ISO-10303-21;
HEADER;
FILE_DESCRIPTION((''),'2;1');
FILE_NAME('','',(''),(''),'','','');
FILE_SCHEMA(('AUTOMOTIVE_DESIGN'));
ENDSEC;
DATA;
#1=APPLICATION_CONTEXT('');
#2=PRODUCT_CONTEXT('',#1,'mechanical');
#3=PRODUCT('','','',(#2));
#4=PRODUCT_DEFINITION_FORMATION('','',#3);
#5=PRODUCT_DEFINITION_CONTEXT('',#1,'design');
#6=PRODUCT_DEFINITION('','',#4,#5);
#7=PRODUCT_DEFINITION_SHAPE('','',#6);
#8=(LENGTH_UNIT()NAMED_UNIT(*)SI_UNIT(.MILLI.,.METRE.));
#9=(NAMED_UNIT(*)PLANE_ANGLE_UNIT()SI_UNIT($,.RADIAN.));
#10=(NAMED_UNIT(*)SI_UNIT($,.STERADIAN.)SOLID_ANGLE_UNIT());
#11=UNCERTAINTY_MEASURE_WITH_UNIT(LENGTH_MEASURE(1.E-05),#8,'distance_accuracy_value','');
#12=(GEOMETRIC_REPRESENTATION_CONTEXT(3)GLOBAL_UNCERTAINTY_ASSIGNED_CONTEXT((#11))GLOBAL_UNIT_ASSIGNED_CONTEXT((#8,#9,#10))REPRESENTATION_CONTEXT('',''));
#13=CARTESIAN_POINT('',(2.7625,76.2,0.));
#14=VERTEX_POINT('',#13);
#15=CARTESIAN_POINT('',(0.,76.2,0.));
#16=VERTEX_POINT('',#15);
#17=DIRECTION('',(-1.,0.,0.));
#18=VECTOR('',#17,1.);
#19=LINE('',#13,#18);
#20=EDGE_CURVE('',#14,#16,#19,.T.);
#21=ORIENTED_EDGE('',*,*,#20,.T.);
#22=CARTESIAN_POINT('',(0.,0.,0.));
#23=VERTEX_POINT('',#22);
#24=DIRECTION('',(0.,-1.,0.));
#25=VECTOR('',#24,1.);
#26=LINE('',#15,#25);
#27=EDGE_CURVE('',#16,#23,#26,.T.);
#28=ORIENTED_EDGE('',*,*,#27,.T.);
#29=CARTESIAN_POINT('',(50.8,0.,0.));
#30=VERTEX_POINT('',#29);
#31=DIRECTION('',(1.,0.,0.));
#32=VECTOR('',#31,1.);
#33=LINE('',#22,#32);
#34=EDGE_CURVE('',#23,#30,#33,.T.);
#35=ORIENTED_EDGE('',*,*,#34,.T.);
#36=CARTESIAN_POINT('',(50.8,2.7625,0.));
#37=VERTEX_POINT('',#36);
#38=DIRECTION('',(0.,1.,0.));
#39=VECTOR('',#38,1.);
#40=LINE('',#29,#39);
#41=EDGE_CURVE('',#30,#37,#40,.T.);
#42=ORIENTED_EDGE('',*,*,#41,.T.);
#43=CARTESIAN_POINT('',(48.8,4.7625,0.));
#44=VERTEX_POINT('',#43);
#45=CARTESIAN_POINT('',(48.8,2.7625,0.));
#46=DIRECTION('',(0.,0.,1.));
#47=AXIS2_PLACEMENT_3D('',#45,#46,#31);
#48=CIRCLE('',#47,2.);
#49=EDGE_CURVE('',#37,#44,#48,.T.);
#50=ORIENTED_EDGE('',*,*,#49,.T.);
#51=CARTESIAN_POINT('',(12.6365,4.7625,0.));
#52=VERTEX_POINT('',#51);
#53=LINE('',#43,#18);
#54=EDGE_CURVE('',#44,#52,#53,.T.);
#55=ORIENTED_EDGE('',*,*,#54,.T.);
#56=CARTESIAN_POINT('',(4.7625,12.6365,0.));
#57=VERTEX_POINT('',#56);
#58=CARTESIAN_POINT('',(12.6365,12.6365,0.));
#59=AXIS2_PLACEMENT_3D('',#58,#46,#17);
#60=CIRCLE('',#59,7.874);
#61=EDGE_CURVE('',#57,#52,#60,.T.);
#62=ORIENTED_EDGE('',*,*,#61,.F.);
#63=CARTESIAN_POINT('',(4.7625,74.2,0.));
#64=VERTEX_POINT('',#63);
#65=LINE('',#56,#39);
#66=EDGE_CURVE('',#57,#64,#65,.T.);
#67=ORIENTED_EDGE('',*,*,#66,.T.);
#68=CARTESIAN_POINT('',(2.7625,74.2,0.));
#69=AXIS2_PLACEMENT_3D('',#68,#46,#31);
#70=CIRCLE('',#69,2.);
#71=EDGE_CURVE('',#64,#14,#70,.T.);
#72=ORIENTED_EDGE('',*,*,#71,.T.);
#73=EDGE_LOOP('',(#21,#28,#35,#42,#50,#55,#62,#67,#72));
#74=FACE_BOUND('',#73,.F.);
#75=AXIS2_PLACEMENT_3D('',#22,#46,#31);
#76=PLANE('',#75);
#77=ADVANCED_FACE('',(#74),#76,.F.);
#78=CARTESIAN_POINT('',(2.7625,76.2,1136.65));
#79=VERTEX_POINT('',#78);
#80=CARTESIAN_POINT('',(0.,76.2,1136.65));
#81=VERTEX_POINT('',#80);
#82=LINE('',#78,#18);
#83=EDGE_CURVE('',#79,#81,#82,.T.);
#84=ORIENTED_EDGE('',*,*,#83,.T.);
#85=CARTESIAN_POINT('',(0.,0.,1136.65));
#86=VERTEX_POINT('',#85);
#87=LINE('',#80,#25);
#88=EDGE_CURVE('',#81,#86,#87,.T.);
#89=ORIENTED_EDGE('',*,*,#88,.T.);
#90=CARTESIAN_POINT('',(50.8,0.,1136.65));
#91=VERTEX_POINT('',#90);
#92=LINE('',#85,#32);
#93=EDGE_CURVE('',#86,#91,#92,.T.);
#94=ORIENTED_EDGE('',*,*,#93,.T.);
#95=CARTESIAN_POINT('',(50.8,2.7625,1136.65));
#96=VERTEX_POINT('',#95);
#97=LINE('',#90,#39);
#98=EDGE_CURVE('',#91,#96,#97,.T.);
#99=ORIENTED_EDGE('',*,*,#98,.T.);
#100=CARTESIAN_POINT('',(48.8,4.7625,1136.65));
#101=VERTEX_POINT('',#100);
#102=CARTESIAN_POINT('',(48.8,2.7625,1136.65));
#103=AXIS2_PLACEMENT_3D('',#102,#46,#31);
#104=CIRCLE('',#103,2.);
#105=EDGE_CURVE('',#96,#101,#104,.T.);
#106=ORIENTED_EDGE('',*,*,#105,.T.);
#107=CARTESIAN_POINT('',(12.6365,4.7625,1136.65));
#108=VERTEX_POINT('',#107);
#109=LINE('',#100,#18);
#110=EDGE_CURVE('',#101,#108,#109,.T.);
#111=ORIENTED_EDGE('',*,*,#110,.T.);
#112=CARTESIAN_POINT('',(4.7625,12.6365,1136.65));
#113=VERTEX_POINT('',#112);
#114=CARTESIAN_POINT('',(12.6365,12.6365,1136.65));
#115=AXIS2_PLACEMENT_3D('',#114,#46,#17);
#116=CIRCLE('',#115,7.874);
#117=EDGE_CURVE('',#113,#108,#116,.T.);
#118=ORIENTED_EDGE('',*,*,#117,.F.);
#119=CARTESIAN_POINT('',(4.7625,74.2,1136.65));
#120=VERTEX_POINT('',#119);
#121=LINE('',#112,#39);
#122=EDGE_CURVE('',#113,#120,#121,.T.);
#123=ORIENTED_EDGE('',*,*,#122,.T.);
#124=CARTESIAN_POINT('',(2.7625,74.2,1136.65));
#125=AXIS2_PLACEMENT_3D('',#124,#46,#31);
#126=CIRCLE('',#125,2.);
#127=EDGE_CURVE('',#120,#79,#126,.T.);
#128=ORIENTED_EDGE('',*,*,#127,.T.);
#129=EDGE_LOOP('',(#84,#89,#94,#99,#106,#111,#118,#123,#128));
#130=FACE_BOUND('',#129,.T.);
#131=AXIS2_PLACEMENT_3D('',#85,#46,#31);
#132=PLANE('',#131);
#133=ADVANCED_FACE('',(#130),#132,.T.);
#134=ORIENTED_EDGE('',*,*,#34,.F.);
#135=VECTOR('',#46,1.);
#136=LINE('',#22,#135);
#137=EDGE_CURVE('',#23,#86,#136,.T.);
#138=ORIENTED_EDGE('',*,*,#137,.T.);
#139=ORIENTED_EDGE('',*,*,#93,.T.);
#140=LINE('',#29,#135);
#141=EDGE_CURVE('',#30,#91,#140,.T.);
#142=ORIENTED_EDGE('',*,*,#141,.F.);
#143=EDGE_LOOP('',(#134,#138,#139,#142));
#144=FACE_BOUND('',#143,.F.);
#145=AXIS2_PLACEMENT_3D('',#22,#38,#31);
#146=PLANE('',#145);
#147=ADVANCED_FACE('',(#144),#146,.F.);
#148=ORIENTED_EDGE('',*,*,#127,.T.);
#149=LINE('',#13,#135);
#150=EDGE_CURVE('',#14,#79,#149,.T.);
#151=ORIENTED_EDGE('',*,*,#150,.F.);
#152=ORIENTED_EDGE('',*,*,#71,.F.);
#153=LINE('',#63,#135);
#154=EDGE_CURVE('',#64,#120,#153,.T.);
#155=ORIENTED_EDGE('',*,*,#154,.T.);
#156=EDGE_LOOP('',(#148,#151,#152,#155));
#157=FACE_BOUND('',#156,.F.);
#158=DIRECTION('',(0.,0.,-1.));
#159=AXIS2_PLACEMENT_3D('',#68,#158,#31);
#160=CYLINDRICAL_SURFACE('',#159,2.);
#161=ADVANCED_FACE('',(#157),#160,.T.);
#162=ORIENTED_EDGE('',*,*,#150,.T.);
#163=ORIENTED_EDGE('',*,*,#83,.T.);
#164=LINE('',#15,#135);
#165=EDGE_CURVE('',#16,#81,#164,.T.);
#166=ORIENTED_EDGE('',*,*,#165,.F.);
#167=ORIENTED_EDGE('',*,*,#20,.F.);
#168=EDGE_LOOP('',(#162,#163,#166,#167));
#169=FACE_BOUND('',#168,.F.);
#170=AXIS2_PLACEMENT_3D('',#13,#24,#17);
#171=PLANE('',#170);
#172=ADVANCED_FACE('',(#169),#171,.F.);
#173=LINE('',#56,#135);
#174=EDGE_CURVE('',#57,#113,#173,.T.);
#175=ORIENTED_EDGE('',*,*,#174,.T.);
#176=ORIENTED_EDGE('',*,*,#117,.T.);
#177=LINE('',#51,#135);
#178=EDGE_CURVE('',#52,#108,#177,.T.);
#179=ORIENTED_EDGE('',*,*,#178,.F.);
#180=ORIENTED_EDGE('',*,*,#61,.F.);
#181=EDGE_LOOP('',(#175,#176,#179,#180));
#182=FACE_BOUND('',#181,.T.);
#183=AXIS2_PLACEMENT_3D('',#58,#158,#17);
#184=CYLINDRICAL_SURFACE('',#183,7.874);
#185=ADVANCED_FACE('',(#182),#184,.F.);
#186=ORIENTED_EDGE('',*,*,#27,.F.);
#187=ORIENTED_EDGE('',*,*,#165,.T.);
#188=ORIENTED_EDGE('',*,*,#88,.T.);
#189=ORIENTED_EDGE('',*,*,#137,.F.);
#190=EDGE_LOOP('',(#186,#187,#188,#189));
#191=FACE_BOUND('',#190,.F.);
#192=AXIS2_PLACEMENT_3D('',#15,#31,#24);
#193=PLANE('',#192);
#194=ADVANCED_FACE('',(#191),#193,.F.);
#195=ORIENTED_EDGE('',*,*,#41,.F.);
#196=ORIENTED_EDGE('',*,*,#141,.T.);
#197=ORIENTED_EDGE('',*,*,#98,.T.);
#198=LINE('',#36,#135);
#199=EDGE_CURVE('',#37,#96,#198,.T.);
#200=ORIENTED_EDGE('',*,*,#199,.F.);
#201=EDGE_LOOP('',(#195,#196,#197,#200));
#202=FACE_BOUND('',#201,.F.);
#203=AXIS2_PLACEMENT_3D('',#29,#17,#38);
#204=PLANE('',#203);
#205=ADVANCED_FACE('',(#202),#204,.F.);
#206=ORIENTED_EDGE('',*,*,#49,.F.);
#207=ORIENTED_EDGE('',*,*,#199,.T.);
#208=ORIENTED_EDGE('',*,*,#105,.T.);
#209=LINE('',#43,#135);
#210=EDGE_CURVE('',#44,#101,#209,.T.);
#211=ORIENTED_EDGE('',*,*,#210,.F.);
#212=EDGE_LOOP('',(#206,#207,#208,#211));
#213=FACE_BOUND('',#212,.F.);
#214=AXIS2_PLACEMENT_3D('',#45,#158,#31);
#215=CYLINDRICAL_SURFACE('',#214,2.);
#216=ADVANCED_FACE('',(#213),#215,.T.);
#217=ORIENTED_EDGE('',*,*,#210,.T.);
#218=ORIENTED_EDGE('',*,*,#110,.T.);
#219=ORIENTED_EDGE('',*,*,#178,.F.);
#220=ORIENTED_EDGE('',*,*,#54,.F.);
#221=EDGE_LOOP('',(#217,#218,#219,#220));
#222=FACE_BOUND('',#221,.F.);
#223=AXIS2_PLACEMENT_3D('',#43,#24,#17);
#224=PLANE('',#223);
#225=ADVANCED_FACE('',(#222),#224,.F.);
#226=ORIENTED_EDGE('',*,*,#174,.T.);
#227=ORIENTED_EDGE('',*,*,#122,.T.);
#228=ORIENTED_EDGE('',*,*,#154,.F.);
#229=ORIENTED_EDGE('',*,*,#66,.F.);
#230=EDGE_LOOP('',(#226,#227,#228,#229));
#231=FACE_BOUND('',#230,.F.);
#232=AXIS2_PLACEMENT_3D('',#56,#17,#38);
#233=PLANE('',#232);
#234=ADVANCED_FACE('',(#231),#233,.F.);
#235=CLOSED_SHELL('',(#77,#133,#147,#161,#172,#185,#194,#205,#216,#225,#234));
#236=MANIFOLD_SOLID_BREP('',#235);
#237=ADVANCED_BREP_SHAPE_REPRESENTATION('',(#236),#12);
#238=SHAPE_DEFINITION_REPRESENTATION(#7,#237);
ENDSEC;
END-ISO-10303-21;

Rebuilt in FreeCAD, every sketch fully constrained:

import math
import FreeCAD as App
import Part
import Sketcher
from FreeCAD import Vector
Q = App.Units.Quantity

doc = App.newDocument("Part")
params = doc.addObject("Spreadsheet::Sheet", "Params")
for row, (alias, value) in enumerate([
    ("sketch1_width", "2 in"),
    ("sketch1_height", "3 in"),
    ("sketch1_radius", "0.31 in"),
    ("pad1_length", "44.75 in"),
], start=1):
    params.set(f"A{row}", alias)
    params.set(f"B{row}", "=" + value)
    params.setAlias(f"B{row}", alias)

body = doc.addObject("PartDesign::Body", "Body")

sketch1 = body.newObject("Sketcher::SketchObject", "Sketch")
sketch1.AttachmentSupport = (doc.getObject("XY_Plane"), [""])
sketch1.MapMode = "FlatFace"
sketch1.addGeometry([
    Part.LineSegment(Vector(2.7625, 76.2, 0), Vector(0, 76.2, 0)),
    Part.LineSegment(Vector(0, 76.2, 0), Vector(0, 0, 0)),
    Part.LineSegment(Vector(0, 0, 0), Vector(50.8, 0, 0)),
    Part.LineSegment(Vector(50.8, 0, 0), Vector(50.8, 2.7625, 0)),
    Part.ArcOfCircle(Part.Circle(Vector(48.8, 2.7625, 0), Vector(0, 0, 1), 2), math.radians(0), math.radians(90)),
    Part.LineSegment(Vector(48.8, 4.7625, 0), Vector(12.6365, 4.7625, 0)),
    Part.ArcOfCircle(Part.Circle(Vector(12.6365, 12.6365, 0), Vector(0, 0, 1), 7.874), math.radians(180), math.radians(270)),
    Part.LineSegment(Vector(4.7625, 12.6365, 0), Vector(4.7625, 74.2, 0)),
    Part.ArcOfCircle(Part.Circle(Vector(2.7625, 74.2, 0), Vector(0, 0, 1), 2), math.radians(0), math.radians(90)),
], False)
sketch1.addConstraint([
    Sketcher.Constraint("Coincident", 0, 2, 1, 1),
    Sketcher.Constraint("Coincident", 1, 2, 2, 1),
    Sketcher.Constraint("Coincident", 2, 2, 3, 1),
    Sketcher.Constraint("Tangent", 3, 2, 4, 1),
    Sketcher.Constraint("Tangent", 4, 2, 5, 1),
    Sketcher.Constraint("Tangent", 5, 2, 6, 2),
    Sketcher.Constraint("Tangent", 6, 1, 7, 1),
    Sketcher.Constraint("Tangent", 7, 2, 8, 1),
    Sketcher.Constraint("Tangent", 8, 2, 0, 1),
    Sketcher.Constraint("Horizontal", 0),
    Sketcher.Constraint("Vertical", 1),
    Sketcher.Constraint("Horizontal", 2),
    Sketcher.Constraint("Vertical", 3),
    Sketcher.Constraint("Horizontal", 5),
    Sketcher.Constraint("Vertical", 7),
    Sketcher.Constraint("Coincident", 1, 2, -1, 1),
    Sketcher.Constraint("Equal", 4, 8),
    Sketcher.Constraint("Equal", 0, 3),
    Sketcher.Constraint("DistanceX", 2, 1, 2, 2, Q("2 in")),
    Sketcher.Constraint("DistanceY", 1, 2, 1, 1, Q("3 in")),
    Sketcher.Constraint("Radius", 6, Q("0.31 in")),
    Sketcher.Constraint("Radius", 4, Q("2 mm")),
    Sketcher.Constraint("DistanceY", -1, 1, 4, 2, Q("0.1875 in")),
])
sketch1.setExpression("Constraints[18]", "Params.sketch1_width")
sketch1.setExpression("Constraints[19]", "Params.sketch1_height")
sketch1.setExpression("Constraints[20]", "Params.sketch1_radius")
pad1 = body.newObject("PartDesign::Pad", "Pad")
pad1.Profile = sketch1
pad1.setExpression("Length", "Params.pad1_length")

doc.recompute()
